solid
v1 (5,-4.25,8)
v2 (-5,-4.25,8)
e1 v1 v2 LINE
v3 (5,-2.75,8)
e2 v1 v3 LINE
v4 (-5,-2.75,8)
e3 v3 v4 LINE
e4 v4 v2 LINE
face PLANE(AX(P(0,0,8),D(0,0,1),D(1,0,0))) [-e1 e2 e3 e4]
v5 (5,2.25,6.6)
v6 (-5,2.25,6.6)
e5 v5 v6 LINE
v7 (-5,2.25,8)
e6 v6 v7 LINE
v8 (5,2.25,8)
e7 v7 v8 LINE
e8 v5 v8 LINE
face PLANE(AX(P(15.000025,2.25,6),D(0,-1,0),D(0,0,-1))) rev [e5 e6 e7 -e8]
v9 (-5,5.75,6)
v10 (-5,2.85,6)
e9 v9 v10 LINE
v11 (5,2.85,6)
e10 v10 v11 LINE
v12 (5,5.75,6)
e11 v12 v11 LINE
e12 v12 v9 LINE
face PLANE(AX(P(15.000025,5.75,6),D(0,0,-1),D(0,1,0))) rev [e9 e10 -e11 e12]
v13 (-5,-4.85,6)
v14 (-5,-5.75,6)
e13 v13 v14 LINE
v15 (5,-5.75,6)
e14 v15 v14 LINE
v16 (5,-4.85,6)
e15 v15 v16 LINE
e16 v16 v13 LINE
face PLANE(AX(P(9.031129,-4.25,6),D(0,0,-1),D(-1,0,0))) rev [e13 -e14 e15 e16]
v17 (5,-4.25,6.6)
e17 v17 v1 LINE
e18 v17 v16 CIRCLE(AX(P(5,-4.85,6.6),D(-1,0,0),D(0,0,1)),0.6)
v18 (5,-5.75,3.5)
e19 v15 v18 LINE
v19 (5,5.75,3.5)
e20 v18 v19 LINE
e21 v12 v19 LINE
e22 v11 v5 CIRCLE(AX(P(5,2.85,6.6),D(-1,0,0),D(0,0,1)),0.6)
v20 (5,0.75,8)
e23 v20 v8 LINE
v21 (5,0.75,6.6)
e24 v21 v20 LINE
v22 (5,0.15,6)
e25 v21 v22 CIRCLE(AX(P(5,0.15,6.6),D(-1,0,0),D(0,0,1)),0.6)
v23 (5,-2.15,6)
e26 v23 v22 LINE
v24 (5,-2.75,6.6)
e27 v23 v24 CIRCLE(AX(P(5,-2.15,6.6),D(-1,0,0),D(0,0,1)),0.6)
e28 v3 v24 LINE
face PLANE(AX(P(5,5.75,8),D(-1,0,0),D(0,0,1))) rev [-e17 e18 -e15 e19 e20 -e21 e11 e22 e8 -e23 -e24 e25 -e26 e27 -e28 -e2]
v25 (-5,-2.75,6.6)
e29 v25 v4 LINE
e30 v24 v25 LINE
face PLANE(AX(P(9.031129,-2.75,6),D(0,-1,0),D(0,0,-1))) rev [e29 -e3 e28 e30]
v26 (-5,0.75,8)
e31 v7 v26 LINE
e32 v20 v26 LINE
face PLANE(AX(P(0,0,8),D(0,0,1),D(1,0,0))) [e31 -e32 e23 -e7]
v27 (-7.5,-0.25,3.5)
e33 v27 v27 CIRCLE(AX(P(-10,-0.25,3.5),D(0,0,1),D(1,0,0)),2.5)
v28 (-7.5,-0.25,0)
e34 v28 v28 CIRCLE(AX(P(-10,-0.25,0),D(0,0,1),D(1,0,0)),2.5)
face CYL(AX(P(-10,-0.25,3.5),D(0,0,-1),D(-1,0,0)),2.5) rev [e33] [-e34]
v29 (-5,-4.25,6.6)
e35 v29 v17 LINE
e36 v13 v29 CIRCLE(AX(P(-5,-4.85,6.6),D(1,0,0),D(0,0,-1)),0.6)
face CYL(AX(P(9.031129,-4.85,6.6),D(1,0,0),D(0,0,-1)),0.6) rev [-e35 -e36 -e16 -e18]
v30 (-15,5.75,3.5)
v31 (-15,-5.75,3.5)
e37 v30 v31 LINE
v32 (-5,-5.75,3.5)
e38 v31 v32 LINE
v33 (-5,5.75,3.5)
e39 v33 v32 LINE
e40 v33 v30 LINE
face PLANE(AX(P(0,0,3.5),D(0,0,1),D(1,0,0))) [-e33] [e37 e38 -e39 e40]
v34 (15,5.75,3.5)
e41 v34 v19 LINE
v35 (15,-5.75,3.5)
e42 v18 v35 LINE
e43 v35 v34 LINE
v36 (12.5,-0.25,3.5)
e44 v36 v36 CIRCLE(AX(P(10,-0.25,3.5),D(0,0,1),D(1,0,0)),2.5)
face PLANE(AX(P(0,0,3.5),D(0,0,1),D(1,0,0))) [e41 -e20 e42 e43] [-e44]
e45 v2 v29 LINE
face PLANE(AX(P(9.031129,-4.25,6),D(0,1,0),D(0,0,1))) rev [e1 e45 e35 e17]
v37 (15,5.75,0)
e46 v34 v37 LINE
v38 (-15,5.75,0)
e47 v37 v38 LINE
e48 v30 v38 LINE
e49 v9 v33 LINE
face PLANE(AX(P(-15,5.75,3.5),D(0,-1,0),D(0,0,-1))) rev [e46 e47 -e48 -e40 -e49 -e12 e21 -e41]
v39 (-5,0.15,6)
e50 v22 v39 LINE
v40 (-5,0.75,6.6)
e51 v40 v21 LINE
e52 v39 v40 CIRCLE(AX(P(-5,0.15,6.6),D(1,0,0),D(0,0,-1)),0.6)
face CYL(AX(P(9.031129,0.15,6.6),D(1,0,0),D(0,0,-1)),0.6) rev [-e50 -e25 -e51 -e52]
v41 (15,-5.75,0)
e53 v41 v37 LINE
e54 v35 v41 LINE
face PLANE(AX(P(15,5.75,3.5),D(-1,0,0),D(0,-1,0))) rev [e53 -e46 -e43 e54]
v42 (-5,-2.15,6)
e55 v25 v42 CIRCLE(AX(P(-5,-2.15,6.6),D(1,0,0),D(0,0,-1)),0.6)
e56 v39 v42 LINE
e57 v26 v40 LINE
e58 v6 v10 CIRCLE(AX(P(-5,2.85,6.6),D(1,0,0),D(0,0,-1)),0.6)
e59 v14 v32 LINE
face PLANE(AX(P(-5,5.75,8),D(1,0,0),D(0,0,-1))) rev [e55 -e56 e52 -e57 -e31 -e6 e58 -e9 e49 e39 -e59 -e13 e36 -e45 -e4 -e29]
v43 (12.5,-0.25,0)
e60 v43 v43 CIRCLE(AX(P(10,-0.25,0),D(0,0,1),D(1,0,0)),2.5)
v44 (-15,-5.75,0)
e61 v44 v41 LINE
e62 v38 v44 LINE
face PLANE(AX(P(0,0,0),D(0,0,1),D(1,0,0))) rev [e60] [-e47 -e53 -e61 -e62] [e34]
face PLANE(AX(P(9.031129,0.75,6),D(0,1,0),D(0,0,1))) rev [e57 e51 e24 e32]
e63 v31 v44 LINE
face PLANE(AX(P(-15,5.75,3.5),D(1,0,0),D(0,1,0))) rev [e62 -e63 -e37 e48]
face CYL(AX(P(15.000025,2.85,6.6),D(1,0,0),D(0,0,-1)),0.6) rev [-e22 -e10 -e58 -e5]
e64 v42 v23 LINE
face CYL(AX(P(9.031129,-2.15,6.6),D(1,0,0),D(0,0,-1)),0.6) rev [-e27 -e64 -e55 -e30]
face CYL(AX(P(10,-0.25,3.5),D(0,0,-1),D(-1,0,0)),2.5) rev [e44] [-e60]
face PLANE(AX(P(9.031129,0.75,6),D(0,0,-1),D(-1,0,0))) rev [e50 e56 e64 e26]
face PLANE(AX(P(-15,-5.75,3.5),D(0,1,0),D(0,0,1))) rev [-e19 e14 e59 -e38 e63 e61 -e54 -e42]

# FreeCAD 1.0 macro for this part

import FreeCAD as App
import Part
import Sketcher


def edges_at(feature, points):
    """Names of the edges that pass closest to the given points."""
    edges = feature.Shape.Edges
    near = lambda p: min(range(len(edges)), key=lambda i: edges[i].distToShape(Part.Vertex(*p))[0])
    return sorted({f"Edge{near(p) + 1}" for p in points})


def add_polygon(sketch, points):
    """Adds a closed chain of lines whose ends are joined by coincident constraints."""
    first, n = sketch.GeometryCount, len(points)
    for a, b in zip(points, points[1:] + points[:1]):
        sketch.addGeometry(Part.LineSegment(App.Vector(*a, 0), App.Vector(*b, 0)), False)
    for i in range(n):
        sketch.addConstraint(Sketcher.Constraint("Coincident", first + i, 2, first + (i + 1) % n, 1))

doc = App.newDocument("Part")
body = doc.addObject("PartDesign::Body", "Body")

sketch1 = body.newObject("Sketcher::SketchObject", "Sketch")
sketch1.AttachmentSupport = (doc.getObject("XY_Plane"), [""])
sketch1.MapMode = "FlatFace"
add_polygon(sketch1, [(-15, 5.8), (-15, -5.8), (15, -5.8), (15, 5.8)])
sketch1.addGeometry(Part.Circle(App.Vector(-10, -0.2, 0), App.Vector(0, 0, 1), 2.5), False)
sketch1.addGeometry(Part.Circle(App.Vector(10, -0.2, 0), App.Vector(0, 0, 1), 2.5), False)
sketch1.addConstraint(Sketcher.Constraint("Vertical", 0))
sketch1.addConstraint(Sketcher.Constraint("Horizontal", 1))
sketch1.addConstraint(Sketcher.Constraint("Vertical", 2))
sketch1.addConstraint(Sketcher.Constraint("Horizontal", 3))
sketch1.addConstraint(Sketcher.Constraint("Equal", 4, 5))
sketch1.addConstraint(Sketcher.Constraint("Symmetric", 0, 2, 2, 2, -1, 1))
sketch1.addConstraint(Sketcher.Constraint("Symmetric", 4, 3, 5, 3, -2))
sketch1.addConstraint(Sketcher.Constraint("Diameter", 4, 5.0))
sketch1.addConstraint(Sketcher.Constraint("DistanceX", 1, 1, 1, 2, 30.0))
sketch1.addConstraint(Sketcher.Constraint("DistanceY", 0, 2, 0, 1, 11.5))
sketch1.addConstraint(Sketcher.Constraint("DistanceX", 4, 3, -1, 1, 10.0))
sketch1.addConstraint(Sketcher.Constraint("DistanceY", 5, 3, 2, 2, 6.0))
pad1 = body.newObject("PartDesign::Pad", "Pad")
pad1.Profile = sketch1
pad1.Length = 3.5

sketch2 = body.newObject("Sketcher::SketchObject", "Sketch001")
sketch2.AttachmentSupport = (doc.getObject("XY_Plane"), [""])
sketch2.MapMode = "FlatFace"
sketch2.AttachmentOffset = App.Placement(App.Vector(0, 0, 3.5), App.Rotation())
add_polygon(sketch2, [(-5, 6), (-5, -6), (5, -6), (5, 6)])
sketch2.addConstraint(Sketcher.Constraint("Vertical", 0))
sketch2.addConstraint(Sketcher.Constraint("Horizontal", 1))
sketch2.addConstraint(Sketcher.Constraint("Vertical", 2))
sketch2.addConstraint(Sketcher.Constraint("Horizontal", 3))
sketch2.addConstraint(Sketcher.Constraint("Symmetric", 0, 2, 2, 2, -1, 1))
sketch2.addConstraint(Sketcher.Constraint("DistanceX", 1, 1, 1, 2, 10.0))
sketch2.addConstraint(Sketcher.Constraint("DistanceY", 0, 2, 0, 1, 11.5))
pad2 = body.newObject("PartDesign::Pad", "Pad001")
pad2.Profile = sketch2
pad2.Length = 4.5

sketch3 = body.newObject("Sketcher::SketchObject", "Sketch002")
sketch3.AttachmentSupport = (doc.getObject("YZ_Plane"), [""])
sketch3.MapMode = "FlatFace"
sketch3.AttachmentOffset = App.Placement(App.Vector(0, 0, -5), App.Rotation())
add_polygon(sketch3, [(5.8, 6), (2.2, 6), (2.2, 8), (5.8, 8)])
sketch3.addConstraint(Sketcher.Constraint("Horizontal", 0))
sketch3.addConstraint(Sketcher.Constraint("Vertical", 1))
sketch3.addConstraint(Sketcher.Constraint("Horizontal", 2))
sketch3.addConstraint(Sketcher.Constraint("Vertical", 3))
sketch3.addConstraint(Sketcher.Constraint("DistanceY", 1, 1, 1, 2, 2.0))
sketch3.addConstraint(Sketcher.Constraint("DistanceX", 0, 2, 0, 1, 3.5))
sketch3.addConstraint(Sketcher.Constraint("DistanceY", -1, 1, 0, 2, 6.0))
sketch3.addConstraint(Sketcher.Constraint("DistanceX", -1, 1, 0, 2, 2.25))
pocket1 = body.newObject("PartDesign::Pocket", "Pocket")
pocket1.Profile = sketch3
pocket1.Type = "ThroughAll"
pocket1.Reversed = True

sketch4 = body.newObject("Sketcher::SketchObject", "Sketch003")
sketch4.AttachmentSupport = (doc.getObject("YZ_Plane"), [""])
sketch4.MapMode = "FlatFace"
sketch4.AttachmentOffset = App.Placement(App.Vector(0, 0, -5), App.Rotation())
add_polygon(sketch4, [(0.8, 6), (-2.8, 6), (-2.8, 8), (0.8, 8)])
add_polygon(sketch4, [(-4.2, 6), (-7.8, 6), (-7.8, 8), (-4.2, 8)])
sketch4.addConstraint(Sketcher.Constraint("Horizontal", 0))
sketch4.addConstraint(Sketcher.Constraint("Vertical", 1))
sketch4.addConstraint(Sketcher.Constraint("Horizontal", 2))
sketch4.addConstraint(Sketcher.Constraint("Vertical", 3))
sketch4.addConstraint(Sketcher.Constraint("Horizontal", 4))
sketch4.addConstraint(Sketcher.Constraint("Vertical", 5))
sketch4.addConstraint(Sketcher.Constraint("Horizontal", 6))
sketch4.addConstraint(Sketcher.Constraint("Vertical", 7))
sketch4.addConstraint(Sketcher.Constraint("Horizontal", 3, 2, 4, 2))
sketch4.addConstraint(Sketcher.Constraint("Horizontal", 2, 2, 5, 2))
sketch4.addConstraint(Sketcher.Constraint("Equal", 2, 4))
sketch4.addConstraint(Sketcher.Constraint("DistanceY", 1, 1, 1, 2, 2.0))
sketch4.addConstraint(Sketcher.Constraint("DistanceX", 0, 2, 0, 1, 3.5))
sketch4.addConstraint(Sketcher.Constraint("DistanceY", -1, 1, 0, 2, 6.0))
sketch4.addConstraint(Sketcher.Constraint("DistanceX", 4, 2, 0, 2, 5.0))
sketch4.addConstraint(Sketcher.Constraint("DistanceX", 0, 2, -1, 1, 2.75))
pocket2 = body.newObject("PartDesign::Pocket", "Pocket001")
pocket2.Profile = sketch4
pocket2.Length = 10
pocket2.Reversed = True
doc.recompute()

fillet = body.newObject("PartDesign::Fillet", "Fillet")
fillet.Base = (pocket2, edges_at(pocket2, [
    (0, 2.25, 6),
    (0, -2.75, 6),
    (0, 0.75, 6),
    (0, -4.25, 6),
]))
fillet.Radius = 0.6

doc.recompute()
